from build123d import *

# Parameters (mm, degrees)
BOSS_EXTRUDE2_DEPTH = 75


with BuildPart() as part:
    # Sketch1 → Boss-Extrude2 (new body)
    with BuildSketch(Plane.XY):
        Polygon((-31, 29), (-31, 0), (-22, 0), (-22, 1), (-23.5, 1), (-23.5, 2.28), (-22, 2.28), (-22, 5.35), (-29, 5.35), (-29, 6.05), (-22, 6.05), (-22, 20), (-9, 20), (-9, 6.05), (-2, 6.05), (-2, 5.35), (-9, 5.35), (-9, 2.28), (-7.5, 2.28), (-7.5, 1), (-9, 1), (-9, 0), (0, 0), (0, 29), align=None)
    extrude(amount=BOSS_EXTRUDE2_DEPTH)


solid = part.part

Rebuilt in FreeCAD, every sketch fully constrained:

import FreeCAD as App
import Part
import Sketcher

V = App.Vector


def add_polygon(sketch, points):
    """Adds a closed chain of lines whose ends are joined by coincident constraints."""
    first, n = sketch.GeometryCount, len(points)
    for a, b in zip(points, points[1:] + points[:1]):
        sketch.addGeometry(Part.LineSegment(App.Vector(*a, 0), App.Vector(*b, 0)), False)
    for i in range(n):
        sketch.addConstraint(Sketcher.Constraint("Coincident", first + i, 2, first + (i + 1) % n, 1))

doc = App.newDocument("Part")
body = doc.addObject("PartDesign::Body", "Body")

sketch1 = body.newObject("Sketcher::SketchObject", "Sketch")
sketch1.AttachmentSupport = (doc.getObject("XY_Plane"), [""])
sketch1.MapMode = "FlatFace"
add_polygon(sketch1, [(-31, 29), (-31, 0), (-22, 0), (-22, 1), (-23.5, 1), (-23.5, 2.3), (-22, 2.3), (-22, 5.3), (-29, 5.3), (-29, 6), (-22, 6), (-22, 20), (-9, 20), (-9, 6), (-2, 6), (-2, 5.3), (-9, 5.3), (-9, 2.3), (-7.5, 2.3), (-7.5, 1), (-9, 1), (-9, 0), (0, 0), (0, 29)])
sketch1.addConstraint([
    Sketcher.Constraint("Vertical", 0),
    Sketcher.Constraint("Horizontal", 1),
    Sketcher.Constraint("Vertical", 2),
    Sketcher.Constraint("Horizontal", 3),
    Sketcher.Constraint("Vertical", 4),
    Sketcher.Constraint("Horizontal", 5),
    Sketcher.Constraint("Vertical", 6),
    Sketcher.Constraint("Horizontal", 7),
    Sketcher.Constraint("Vertical", 8),
    Sketcher.Constraint("Horizontal", 9),
    Sketcher.Constraint("Vertical", 10),
    Sketcher.Constraint("Horizontal", 11),
    Sketcher.Constraint("Vertical", 12),
    Sketcher.Constraint("Horizontal", 13),
    Sketcher.Constraint("Vertical", 14),
    Sketcher.Constraint("Horizontal", 15),
    Sketcher.Constraint("Vertical", 16),
    Sketcher.Constraint("Horizontal", 17),
    Sketcher.Constraint("Vertical", 18),
    Sketcher.Constraint("Horizontal", 19),
    Sketcher.Constraint("Vertical", 20),
    Sketcher.Constraint("Horizontal", 21),
    Sketcher.Constraint("Vertical", 22),
    Sketcher.Constraint("Horizontal", 23),
    Sketcher.Constraint("Coincident", 21, 2, -1, 1),
    Sketcher.Constraint("PointOnObject", 0, 2, -1),
    Sketcher.Constraint("Horizontal", 9, 2, 12, 2),
    Sketcher.Constraint("Horizontal", 7, 2, 14, 2),
    Sketcher.Constraint("Horizontal", 5, 2, 16, 2),
    Sketcher.Constraint("Horizontal", 3, 2, 18, 2),
    Sketcher.Constraint("Vertical", 2, 2, 5, 2),
    Sketcher.Constraint("Vertical", 6, 2, 9, 2),
    Sketcher.Constraint("Vertical", 12, 2, 15, 2),
    Sketcher.Constraint("Vertical", 16, 2, 19, 2),
    Sketcher.Constraint("Equal", 9, 13),
    Sketcher.Constraint("Equal", 5, 17),
    Sketcher.Constraint("Equal", 1, 21),
    Sketcher.Constraint("DistanceX", 1, 1, 1, 2, 9.0),
    Sketcher.Constraint("DistanceX", 7, 2, 7, 1, 7.0),
    Sketcher.Constraint("DistanceX", 11, 1, 11, 2, 13.0),
    Sketcher.Constraint("DistanceY", 0, 2, 0, 1, 29.0),
    Sketcher.Constraint("DistanceY", 2, 1, 2, 2, 1.0),
    Sketcher.Constraint("DistanceX", 3, 2, 3, 1, 1.5),
    Sketcher.Constraint("DistanceY", 8, 1, 8, 2, 0.7),
    Sketcher.Constraint("DistanceY", -1, 1, 10, 2, 20.0),
    Sketcher.Constraint("DistanceY", 4, 1, 4, 2, 1.28),
    Sketcher.Constraint("DistanceY", 6, 1, 6, 2, 3.07),
])
pad1 = body.newObject("PartDesign::Pad", "Pad")
pad1.Profile = sketch1
pad1.Length = 75

doc.recompute()
